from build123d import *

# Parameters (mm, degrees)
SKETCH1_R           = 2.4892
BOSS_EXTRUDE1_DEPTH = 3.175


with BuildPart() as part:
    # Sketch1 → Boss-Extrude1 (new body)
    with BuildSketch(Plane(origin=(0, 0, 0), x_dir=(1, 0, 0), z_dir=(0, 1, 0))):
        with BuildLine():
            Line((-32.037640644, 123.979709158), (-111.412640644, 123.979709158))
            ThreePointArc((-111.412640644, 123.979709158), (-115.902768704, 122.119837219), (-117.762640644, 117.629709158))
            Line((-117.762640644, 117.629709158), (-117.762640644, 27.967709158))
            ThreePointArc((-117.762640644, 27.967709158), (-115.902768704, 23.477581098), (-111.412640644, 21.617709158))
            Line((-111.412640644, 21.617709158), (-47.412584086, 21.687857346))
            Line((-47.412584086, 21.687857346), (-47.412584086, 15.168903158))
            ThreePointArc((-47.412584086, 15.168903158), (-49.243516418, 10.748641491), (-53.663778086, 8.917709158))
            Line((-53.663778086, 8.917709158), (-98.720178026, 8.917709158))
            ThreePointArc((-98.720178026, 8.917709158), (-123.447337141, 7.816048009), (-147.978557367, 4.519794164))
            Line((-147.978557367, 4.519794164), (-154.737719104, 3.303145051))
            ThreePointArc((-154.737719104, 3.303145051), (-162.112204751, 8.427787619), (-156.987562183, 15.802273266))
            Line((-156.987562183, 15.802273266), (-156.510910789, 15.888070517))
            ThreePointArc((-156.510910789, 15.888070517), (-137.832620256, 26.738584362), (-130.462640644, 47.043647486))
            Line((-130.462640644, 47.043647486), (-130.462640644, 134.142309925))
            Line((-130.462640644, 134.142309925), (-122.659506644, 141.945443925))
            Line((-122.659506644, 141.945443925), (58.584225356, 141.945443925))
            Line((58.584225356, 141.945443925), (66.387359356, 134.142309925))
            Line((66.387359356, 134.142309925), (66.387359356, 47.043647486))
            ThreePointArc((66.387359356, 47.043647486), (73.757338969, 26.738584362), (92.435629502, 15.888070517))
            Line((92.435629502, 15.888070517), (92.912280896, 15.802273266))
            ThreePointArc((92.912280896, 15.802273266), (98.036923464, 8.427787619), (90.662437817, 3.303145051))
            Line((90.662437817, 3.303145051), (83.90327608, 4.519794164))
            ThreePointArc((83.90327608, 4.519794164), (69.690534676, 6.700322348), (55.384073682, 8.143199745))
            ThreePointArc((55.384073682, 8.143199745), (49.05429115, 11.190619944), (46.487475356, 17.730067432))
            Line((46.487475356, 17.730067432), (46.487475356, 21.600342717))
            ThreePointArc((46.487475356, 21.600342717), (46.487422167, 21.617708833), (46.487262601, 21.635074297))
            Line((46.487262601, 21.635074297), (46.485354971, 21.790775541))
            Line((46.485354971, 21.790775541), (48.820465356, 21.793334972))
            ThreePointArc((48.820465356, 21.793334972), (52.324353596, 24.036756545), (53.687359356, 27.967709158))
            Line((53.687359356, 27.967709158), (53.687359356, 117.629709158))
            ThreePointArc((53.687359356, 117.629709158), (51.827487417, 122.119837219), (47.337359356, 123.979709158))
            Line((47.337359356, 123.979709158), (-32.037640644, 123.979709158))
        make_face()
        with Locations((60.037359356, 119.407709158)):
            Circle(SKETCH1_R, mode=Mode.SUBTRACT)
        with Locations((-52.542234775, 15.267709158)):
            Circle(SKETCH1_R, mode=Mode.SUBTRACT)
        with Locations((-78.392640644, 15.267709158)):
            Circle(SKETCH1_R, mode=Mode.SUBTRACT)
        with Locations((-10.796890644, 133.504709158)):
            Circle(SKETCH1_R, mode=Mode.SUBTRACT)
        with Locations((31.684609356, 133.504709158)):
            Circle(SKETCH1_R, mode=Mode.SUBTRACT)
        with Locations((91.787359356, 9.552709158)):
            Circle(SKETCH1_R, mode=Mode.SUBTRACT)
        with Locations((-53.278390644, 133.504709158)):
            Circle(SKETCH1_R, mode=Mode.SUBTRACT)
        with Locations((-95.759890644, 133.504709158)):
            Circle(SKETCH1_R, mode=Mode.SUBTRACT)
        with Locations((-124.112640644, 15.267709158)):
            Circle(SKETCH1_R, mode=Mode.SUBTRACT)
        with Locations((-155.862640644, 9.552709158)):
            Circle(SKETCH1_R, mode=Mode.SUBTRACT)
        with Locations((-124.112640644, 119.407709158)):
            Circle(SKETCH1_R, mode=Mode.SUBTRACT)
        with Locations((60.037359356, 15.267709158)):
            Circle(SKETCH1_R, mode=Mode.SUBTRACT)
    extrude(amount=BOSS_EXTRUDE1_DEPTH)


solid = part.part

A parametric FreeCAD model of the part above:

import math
import FreeCAD as App
import Part
import Sketcher
Q = App.Units.Quantity

doc = App.newDocument("Part")
body = doc.addObject("PartDesign::Body", "Body")

# Sketch on XZ plane
sketch1 = body.newObject("Sketcher::SketchObject", "Sketch")
sketch1.AttachmentSupport = (doc.getObject("XZ_Plane"), [""])
sketch1.MapMode = "FlatFace"
sketch1.addGeometry([
    Part.ArcOfCircle(Part.Circle(App.Vector(-111.413, -117.63, 0), App.Vector(0, 0, 1), 6.35), math.radians(180), math.radians(270)),  # 0
    Part.LineSegment(App.Vector(-111.413, -123.98, 0), App.Vector(47.337, -123.98, 0)),  # 1
    Part.ArcOfCircle(Part.Circle(App.Vector(47.337, -117.63, 0), App.Vector(0, 0, 1), 6.35), math.radians(-90), math.radians(0)),  # 2
    Part.LineSegment(App.Vector(53.687, -117.63, 0), App.Vector(53.687, -27.968, 0)),  # 3
    Part.ArcOfCircle(Part.Circle(App.Vector(47.337, -27.968, 0), App.Vector(0, 0, 1), 6.35), math.radians(0), math.radians(76)),  # 4
    Part.LineSegment(App.Vector(48.82, -21.793, 0), App.Vector(46.485, -21.791, 0)),  # 5
    Part.LineSegment(App.Vector(46.485, -21.791, 0), App.Vector(46.487, -21.635, 0)),  # 6
    Part.ArcOfCircle(Part.Circle(App.Vector(43.652, -21.6, 0), App.Vector(0, 0, 1), 2.835), math.radians(-0.7), math.radians(0)),  # 7
    Part.LineSegment(App.Vector(46.487, -21.6, 0), App.Vector(46.487, -17.73, 0)),  # 8
    Part.ArcOfCircle(Part.Circle(App.Vector(56.101, -17.73, 0), App.Vector(0, 0, 1), 9.614), math.radians(94), math.radians(180)),  # 9
    Part.ArcOfCircle(Part.Circle(App.Vector(34.645, 269.138, 0), App.Vector(0, 0, 1), 278.056), math.radians(-85.72), math.radians(-79.8)),  # 10
    Part.LineSegment(App.Vector(83.903, -4.52, 0), App.Vector(90.662, -3.303, 0)),  # 11
    Part.ArcOfCircle(Part.Circle(App.Vector(91.787, -9.553, 0), App.Vector(0, 0, 1), 6.35), math.radians(-80), math.radians(100)),  # 12
    Part.LineSegment(App.Vector(92.912, -15.802, 0), App.Vector(92.436, -15.888, 0)),  # 13
    Part.ArcOfCircle(Part.Circle(App.Vector(98.044, -47.044, 0), App.Vector(0, 0, 1), 31.656), math.radians(100), math.radians(180)),  # 14
    Part.LineSegment(App.Vector(66.387, -47.044, 0), App.Vector(66.387, -134.142, 0)),  # 15
    Part.LineSegment(App.Vector(66.387, -134.142, 0), App.Vector(58.584, -141.945, 0)),  # 16
    Part.LineSegment(App.Vector(58.584, -141.945, 0), App.Vector(-122.66, -141.945, 0)),  # 17
    Part.LineSegment(App.Vector(-122.66, -141.945, 0), App.Vector(-130.463, -134.142, 0)),  # 18
    Part.LineSegment(App.Vector(-130.463, -134.142, 0), App.Vector(-130.463, -47.044, 0)),  # 19
    Part.ArcOfCircle(Part.Circle(App.Vector(-162.119, -47.044, 0), App.Vector(0, 0, 1), 31.656), math.radians(0), math.radians(80)),  # 20
    Part.LineSegment(App.Vector(-156.511, -15.888, 0), App.Vector(-156.988, -15.802, 0)),  # 21
    Part.ArcOfCircle(Part.Circle(App.Vector(-155.863, -9.553, 0), App.Vector(0, 0, 1), 6.35), math.radians(80), math.radians(260)),  # 22
    Part.LineSegment(App.Vector(-154.738, -3.303, 0), App.Vector(-147.979, -4.52, 0)),  # 23
    Part.ArcOfCircle(Part.Circle(App.Vector(-98.72, 269.138, 0), App.Vector(0, 0, 1), 278.056), math.radians(-100.2), math.radians(-90)),  # 24
    Part.LineSegment(App.Vector(-98.72, -8.918, 0), App.Vector(-53.664, -8.918, 0)),  # 25
    Part.ArcOfCircle(Part.Circle(App.Vector(-53.664, -15.169, 0), App.Vector(0, 0, 1), 6.251), math.radians(0), math.radians(90)),  # 26
    Part.LineSegment(App.Vector(-47.413, -15.169, 0), App.Vector(-47.413, -21.688, 0)),  # 27
    Part.LineSegment(App.Vector(-47.413, -21.688, 0), App.Vector(-111.413, -21.618, 0)),  # 28
    Part.ArcOfCircle(Part.Circle(App.Vector(-111.413, -27.968, 0), App.Vector(0, 0, 1), 6.35), math.radians(90), math.radians(180)),  # 29
    Part.LineSegment(App.Vector(-117.763, -27.968, 0), App.Vector(-117.763, -117.63, 0)),  # 30
    Part.Circle(App.Vector(91.787, -9.553, 0), App.Vector(0, 0, 1), 2.489),  # 31
    Part.Circle(App.Vector(60.037, -15.268, 0), App.Vector(0, 0, 1), 2.489),  # 32
    Part.Circle(App.Vector(-52.542, -15.268, 0), App.Vector(0, 0, 1), 2.489),  # 33
    Part.Circle(App.Vector(-78.393, -15.268, 0), App.Vector(0, 0, 1), 2.489),  # 34
    Part.Circle(App.Vector(-124.113, -15.268, 0), App.Vector(0, 0, 1), 2.489),  # 35
    Part.Circle(App.Vector(-155.863, -9.553, 0), App.Vector(0, 0, 1), 2.489),  # 36
    Part.Circle(App.Vector(60.037, -119.408, 0), App.Vector(0, 0, 1), 2.489),  # 37
    Part.Circle(App.Vector(31.685, -133.505, 0), App.Vector(0, 0, 1), 2.489),  # 38
    Part.Circle(App.Vector(-10.797, -133.505, 0), App.Vector(0, 0, 1), 2.489),  # 39
    Part.Circle(App.Vector(-53.278, -133.505, 0), App.Vector(0, 0, 1), 2.489),  # 40
    Part.Circle(App.Vector(-124.113, -119.408, 0), App.Vector(0, 0, 1), 2.489),  # 41
    Part.Circle(App.Vector(-95.76, -133.505, 0), App.Vector(0, 0, 1), 2.489),  # 42
], False)
sketch1.addConstraint([
    Sketcher.Constraint("Tangent", 0, 2, 1, 1),
    Sketcher.Constraint("Tangent", 1, 2, 2, 1),
    Sketcher.Constraint("Tangent", 2, 2, 3, 1),
    Sketcher.Constraint("Tangent", 3, 2, 4, 1),
    Sketcher.Constraint("Coincident", 4, 2, 5, 1),
    Sketcher.Constraint("Coincident", 5, 2, 6, 1),
    Sketcher.Constraint("Tangent", 6, 2, 7, 1),
    Sketcher.Constraint("Tangent", 7, 2, 8, 1),
    Sketcher.Constraint("Tangent", 8, 2, 9, 2),
    Sketcher.Constraint("Tangent", 9, 1, 10, 1),
    Sketcher.Constraint("Tangent", 10, 2, 11, 1),
    Sketcher.Constraint("Tangent", 11, 2, 12, 2),
    Sketcher.Constraint("Tangent", 12, 1, 13, 1),
    Sketcher.Constraint("Tangent", 13, 2, 14, 1),
    Sketcher.Constraint("Tangent", 14, 2, 15, 1),
    Sketcher.Constraint("Coincident", 15, 2, 16, 1),
    Sketcher.Constraint("Coincident", 16, 2, 17, 1),
    Sketcher.Constraint("Coincident", 17, 2, 18, 1),
    Sketcher.Constraint("Coincident", 18, 2, 19, 1),
    Sketcher.Constraint("Tangent", 19, 2, 20, 1),
    Sketcher.Constraint("Tangent", 20, 2, 21, 1),
    Sketcher.Constraint("Tangent", 21, 2, 22, 2),
    Sketcher.Constraint("Tangent", 22, 1, 23, 1),
    Sketcher.Constraint("Tangent", 23, 2, 24, 1),
    Sketcher.Constraint("Tangent", 24, 2, 25, 1),
    Sketcher.Constraint("Tangent", 25, 2, 26, 2),
    Sketcher.Constraint("Tangent", 26, 1, 27, 1),
    Sketcher.Constraint("Coincident", 27, 2, 28, 1),
    Sketcher.Constraint("Coincident", 28, 2, 29, 1),
    Sketcher.Constraint("Tangent", 29, 2, 30, 1),
    Sketcher.Constraint("Tangent", 30, 2, 0, 1),
    Sketcher.Constraint("Horizontal", 1),
    Sketcher.Constraint("Vertical", 3),
    Sketcher.Constraint("Vertical", 8),
    Sketcher.Constraint("Vertical", 15),
    Sketcher.Constraint("Horizontal", 17),
    Sketcher.Constraint("Vertical", 19),
    Sketcher.Constraint("Horizontal", 25),
    Sketcher.Constraint("Vertical", 27),
    Sketcher.Constraint("Vertical", 30),
    Sketcher.Constraint("Coincident", 31, 3, 12, 3),
    Sketcher.Constraint("Coincident", 36, 3, 22, 3),
    Sketcher.Constraint("Equal", 0, 2),
    Sketcher.Constraint("Equal", 2, 4),
    Sketcher.Constraint("Equal", 4, 12),
    Sketcher.Constraint("Equal", 14, 20),
    Sketcher.Constraint("Equal", 12, 22),
    Sketcher.Constraint("Equal", 10, 24),
    Sketcher.Constraint("Equal", 22, 29),
    Sketcher.Constraint("Equal", 31, 32),
    Sketcher.Constraint("Equal", 32, 33),
    Sketcher.Constraint("Equal", 33, 34),
    Sketcher.Constraint("Equal", 34, 35),
    Sketcher.Constraint("Equal", 35, 36),
    Sketcher.Constraint("Equal", 36, 37),
    Sketcher.Constraint("Equal", 37, 38),
    Sketcher.Constraint("Equal", 38, 39),
    Sketcher.Constraint("Equal", 39, 40),
    Sketcher.Constraint("Equal", 40, 41),
    Sketcher.Constraint("Equal", 41, 42),
    Sketcher.Constraint("Parallel", 11, 13),
    Sketcher.Constraint("Perpendicular", 16, 18),
    Sketcher.Constraint("Parallel", 21, 23),
    Sketcher.Constraint("Parallel", 5, 28),
    Sketcher.Constraint("Horizontal", 14, 3, 20, 3),
    Sketcher.Constraint("Horizontal", 12, 3, 22, 3),
    Sketcher.Constraint("Horizontal", 10, 3, 24, 3),
    Sketcher.Constraint("Horizontal", 4, 3, 29, 3),
    Sketcher.Constraint("Horizontal", 32, 3, 33, 3),
    Sketcher.Constraint("Horizontal", 33, 3, 34, 3),
    Sketcher.Constraint("Horizontal", 34, 3, 35, 3),
    Sketcher.Constraint("Horizontal", 38, 3, 39, 3),
    Sketcher.Constraint("Horizontal", 39, 3, 40, 3),
    Sketcher.Constraint("Horizontal", 37, 3, 41, 3),
    Sketcher.Constraint("Horizontal", 40, 3, 42, 3),
    Sketcher.Constraint("Horizontal", 15, 2, 18, 2),
    Sketcher.Constraint("Horizontal", 13, 2, 20, 2),
    Sketcher.Constraint("Vertical", 32, 3, 37, 3),
    Sketcher.Constraint("Vertical", 35, 3, 41, 3),
    Sketcher.Constraint("Vertical", 0, 2, 28, 2),
    Sketcher.Constraint("Equal", 16, 18),
    Sketcher.Constraint("Radius", 0, Q("0.25 in")),
    Sketcher.Constraint("Diameter", 31, Q("0.196 in")),
    Sketcher.Constraint("DistanceX", 0, 3, 12, 3, Q("8 in")),
    Sketcher.Constraint("DistanceX", 22, 3, 4, 3, Q("8 in")),
    Sketcher.Constraint("DistanceX", 22, 3, 19, 2, Q("1 in")),
    Sketcher.Constraint("DistanceX", 1, 1, 1, 2, Q("6.25 in")),
    Sketcher.Constraint("DistanceY", 3, 1, 3, 2, Q("3.53 in")),
    Sketcher.Constraint("DistanceX", 4, 3, 32, 3, Q("0.5 in")),
    Sketcher.Constraint("DistanceY", 4, 3, 32, 3, Q("0.5 in")),
    Sketcher.Constraint("DistanceX", 29, 3, 34, 3, Q("1.3 in")),
    Sketcher.Constraint("DistanceX", 35, 3, 29, 3, Q("0.5 in")),
    Sketcher.Constraint("DistanceY", 37, 3, 4, 3, Q("3.6 in")),
    Sketcher.Constraint("DistanceY", 28, 2, 24, 2, Q("0.5 in")),
    Sketcher.Constraint("Radius", 24, 278.055578),
    Sketcher.Constraint("DistanceY", 4, 3, 12, 3, Q("0.725 in")),
    Sketcher.Constraint("DistanceY", 38, 3, 2, 3, Q("0.625 in")),
    Sketcher.Constraint("DistanceX", 40, 3, 38, 3, Q("3.345 in")),
    Sketcher.Constraint("DistanceX", 42, 3, 39, 3, Q("3.345 in")),
    Sketcher.Constraint("DistanceX", 25, 1, 25, 2, 45.0564),
    Sketcher.Constraint("Radius", 7, 2.835003),
    Sketcher.Constraint("Radius", 9, 9.613646),
    Sketcher.Constraint("Radius", 14, 31.656274),
    Sketcher.Constraint("Radius", 26, 6.251194),
    Sketcher.Constraint("DistanceX", 39, 3, 38, 3, Q("1.6725 in")),
    Sketcher.Constraint("DistanceX", 17, 2, 17, 1, 181.243732),
    Sketcher.Constraint("DistanceY", 9, 1, -1, 1, 8.1432),
    Sketcher.Constraint("DistanceX", 24, 3, 9, 3, 154.821299),
    Sketcher.Constraint("DistanceY", 5, 2, 6, 2, 0.155701),
    Sketcher.Constraint("DistanceY", 15, 2, 37, 3, 14.734601),
    Sketcher.Constraint("Distance", 5, 2.335112),
    Sketcher.Constraint("Distance", 13, 0.484312),
    Sketcher.Constraint("DistanceY", 8, 1, 8, 2, 3.870275),
    Sketcher.Constraint("DistanceY", 27, 2, 27, 1, 6.518954),
    Sketcher.Constraint("DistanceX", 0, 3, -1, 1, 111.412641),
    Sketcher.Constraint("DistanceX", -1, 1, 38, 3, 31.684609),
    Sketcher.Constraint("DistanceX", 33, 3, 26, 1, 5.129651),
])
pad1 = body.newObject("PartDesign::Pad", "Pad")
pad1.Profile = sketch1
pad1.Length = Q("0.125 in")
pad1.Reversed = True

doc.recompute()
